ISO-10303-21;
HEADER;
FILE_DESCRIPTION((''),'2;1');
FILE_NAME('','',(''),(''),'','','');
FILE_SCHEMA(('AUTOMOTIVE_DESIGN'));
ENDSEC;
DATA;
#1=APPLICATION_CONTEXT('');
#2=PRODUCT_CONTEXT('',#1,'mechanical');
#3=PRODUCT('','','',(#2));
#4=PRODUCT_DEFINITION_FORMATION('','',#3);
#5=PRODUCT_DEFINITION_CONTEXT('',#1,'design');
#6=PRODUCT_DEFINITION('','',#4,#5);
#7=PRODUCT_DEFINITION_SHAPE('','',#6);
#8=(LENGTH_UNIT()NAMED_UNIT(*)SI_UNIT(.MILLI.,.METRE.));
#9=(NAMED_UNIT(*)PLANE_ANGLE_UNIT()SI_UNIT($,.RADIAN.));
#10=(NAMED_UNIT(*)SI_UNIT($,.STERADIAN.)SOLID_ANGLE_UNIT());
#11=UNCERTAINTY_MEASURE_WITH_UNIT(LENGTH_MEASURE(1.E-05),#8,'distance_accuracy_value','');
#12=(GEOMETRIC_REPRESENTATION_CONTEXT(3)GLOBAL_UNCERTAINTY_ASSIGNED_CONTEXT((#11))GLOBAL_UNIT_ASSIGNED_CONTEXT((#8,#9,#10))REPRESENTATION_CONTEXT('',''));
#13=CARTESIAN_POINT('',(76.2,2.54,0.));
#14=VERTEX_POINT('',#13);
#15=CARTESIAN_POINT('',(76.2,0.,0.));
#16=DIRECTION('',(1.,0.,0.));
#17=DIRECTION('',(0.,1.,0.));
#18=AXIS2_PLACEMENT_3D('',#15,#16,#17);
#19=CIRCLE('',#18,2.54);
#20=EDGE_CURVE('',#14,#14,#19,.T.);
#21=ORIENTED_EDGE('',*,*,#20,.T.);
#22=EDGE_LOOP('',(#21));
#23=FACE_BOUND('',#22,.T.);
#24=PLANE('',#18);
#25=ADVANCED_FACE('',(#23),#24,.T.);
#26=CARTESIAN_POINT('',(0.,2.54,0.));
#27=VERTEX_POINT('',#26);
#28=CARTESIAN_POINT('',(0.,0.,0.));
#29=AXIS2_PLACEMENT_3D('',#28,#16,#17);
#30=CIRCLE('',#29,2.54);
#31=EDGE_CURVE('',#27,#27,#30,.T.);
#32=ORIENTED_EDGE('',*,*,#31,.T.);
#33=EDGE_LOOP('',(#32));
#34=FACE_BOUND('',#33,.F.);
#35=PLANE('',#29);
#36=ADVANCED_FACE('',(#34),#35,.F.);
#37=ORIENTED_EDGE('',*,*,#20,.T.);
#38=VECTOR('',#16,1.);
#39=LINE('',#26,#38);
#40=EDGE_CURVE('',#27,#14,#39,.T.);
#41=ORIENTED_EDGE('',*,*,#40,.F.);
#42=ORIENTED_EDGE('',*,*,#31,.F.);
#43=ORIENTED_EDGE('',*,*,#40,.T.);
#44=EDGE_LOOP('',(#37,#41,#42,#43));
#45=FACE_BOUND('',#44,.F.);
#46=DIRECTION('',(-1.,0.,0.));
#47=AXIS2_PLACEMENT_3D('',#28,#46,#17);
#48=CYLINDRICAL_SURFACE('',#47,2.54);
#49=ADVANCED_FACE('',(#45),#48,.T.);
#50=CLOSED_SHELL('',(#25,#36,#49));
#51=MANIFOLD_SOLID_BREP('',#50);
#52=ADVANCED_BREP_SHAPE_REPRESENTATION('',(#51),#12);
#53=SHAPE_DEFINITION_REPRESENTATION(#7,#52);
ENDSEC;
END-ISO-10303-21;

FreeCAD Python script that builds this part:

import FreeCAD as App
import Part
import Sketcher
from FreeCAD import Vector
Q = App.Units.Quantity

doc = App.newDocument("Part")
body = doc.addObject("PartDesign::Body", "Body")

sketch1 = body.newObject("Sketcher::SketchObject", "Sketch")
sketch1.AttachmentSupport = (doc.getObject("XZ_Plane"), [""])
sketch1.MapMode = "FlatFace"
sketch1.addGeometry(Part.Circle(Vector(0, 0, 0), Vector(0, 0, 1), 2.442895), False)
sketch1.addConstraint(Sketcher.Constraint("Coincident", 0, 3, -1, 1))
sketch1.addConstraint(Sketcher.Constraint("Diameter", 0, 4.885789))
pad1 = body.newObject("PartDesign::Pad", "Pad")
pad1.Profile = sketch1
pad1.Length = Q("2.3 in")
body2 = doc.addObject("PartDesign::Body", "Body001")

sketch2 = body2.newObject("Sketcher::SketchObject", "Sketch001")
sketch2.AttachmentSupport = (doc.getObject("YZ_Plane001"), [""])
sketch2.MapMode = "FlatFace"
sketch2.addGeometry(Part.Circle(Vector(0, 0, 0), Vector(0, 0, 1), 2.54), False)
sketch2.addConstraint(Sketcher.Constraint("Coincident", 0, 3, -1, 1))
sketch2.addConstraint(Sketcher.Constraint("Diameter", 0, Q("0.2 in")))
pad2 = body2.newObject("PartDesign::Pad", "Pad001")
pad2.Profile = sketch2
pad2.Length = Q("3 in")
body.Visibility = False

doc.recompute()
